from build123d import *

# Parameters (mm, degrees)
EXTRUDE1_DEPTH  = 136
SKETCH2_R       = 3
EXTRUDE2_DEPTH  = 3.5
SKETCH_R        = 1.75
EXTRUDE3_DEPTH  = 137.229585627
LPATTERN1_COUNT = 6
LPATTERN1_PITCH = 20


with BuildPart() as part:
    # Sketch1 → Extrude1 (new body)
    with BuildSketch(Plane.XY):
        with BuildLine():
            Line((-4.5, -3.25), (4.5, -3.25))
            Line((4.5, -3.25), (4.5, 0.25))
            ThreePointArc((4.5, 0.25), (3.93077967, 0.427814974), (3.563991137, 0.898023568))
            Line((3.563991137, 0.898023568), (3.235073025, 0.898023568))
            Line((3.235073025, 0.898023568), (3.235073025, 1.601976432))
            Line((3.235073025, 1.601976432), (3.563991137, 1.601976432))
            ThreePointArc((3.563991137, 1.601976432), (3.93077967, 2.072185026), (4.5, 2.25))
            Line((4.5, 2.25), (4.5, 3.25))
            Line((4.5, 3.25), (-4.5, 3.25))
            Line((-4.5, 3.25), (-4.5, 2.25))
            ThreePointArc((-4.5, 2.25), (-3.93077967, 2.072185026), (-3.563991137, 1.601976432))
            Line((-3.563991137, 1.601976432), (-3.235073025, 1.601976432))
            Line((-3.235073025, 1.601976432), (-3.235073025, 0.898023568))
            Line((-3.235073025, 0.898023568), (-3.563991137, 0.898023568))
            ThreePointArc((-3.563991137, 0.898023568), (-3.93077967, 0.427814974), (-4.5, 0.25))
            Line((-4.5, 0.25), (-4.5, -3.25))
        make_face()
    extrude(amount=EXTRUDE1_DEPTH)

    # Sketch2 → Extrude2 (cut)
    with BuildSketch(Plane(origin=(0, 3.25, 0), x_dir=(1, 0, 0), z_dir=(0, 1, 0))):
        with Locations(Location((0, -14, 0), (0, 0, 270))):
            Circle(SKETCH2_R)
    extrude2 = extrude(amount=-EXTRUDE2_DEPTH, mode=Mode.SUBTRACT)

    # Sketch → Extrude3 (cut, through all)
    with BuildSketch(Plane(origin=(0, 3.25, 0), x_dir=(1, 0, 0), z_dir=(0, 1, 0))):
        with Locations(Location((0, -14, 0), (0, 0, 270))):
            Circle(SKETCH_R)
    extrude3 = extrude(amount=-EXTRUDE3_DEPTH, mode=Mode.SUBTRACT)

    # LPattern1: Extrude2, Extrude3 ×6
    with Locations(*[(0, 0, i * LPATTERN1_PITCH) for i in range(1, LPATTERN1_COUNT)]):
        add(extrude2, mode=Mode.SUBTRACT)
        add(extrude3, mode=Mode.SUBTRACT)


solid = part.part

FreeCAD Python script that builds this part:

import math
import FreeCAD as App
import Part
import Sketcher
from FreeCAD import Vector

doc = App.newDocument("Part")
body = doc.addObject("PartDesign::Body", "Body")

# Sketch on XY plane
sketch1 = body.newObject("Sketcher::SketchObject", "Sketch")
sketch1.AttachmentSupport = (doc.getObject("XY_Plane"), [""])
sketch1.MapMode = "FlatFace"
sketch1.addGeometry(Part.LineSegment(Vector(-4.5, -3.25, 0), Vector(4.5, -3.25, 0)), False)
sketch1.addGeometry(Part.LineSegment(Vector(4.5, -3.25, 0), Vector(4.5, 0.25, 0)), False)
sketch1.addGeometry(Part.ArcOfCircle(Part.Circle(Vector(4.5, 1.25, 0), Vector(0, 0, 1), 1), math.radians(-159), math.radians(-90)), False)
sketch1.addGeometry(Part.LineSegment(Vector(3.56, 0.9, 0), Vector(3.24, 0.9, 0)), False)
sketch1.addGeometry(Part.LineSegment(Vector(3.24, 0.9, 0), Vector(3.24, 1.6, 0)), False)
sketch1.addGeometry(Part.LineSegment(Vector(3.24, 1.6, 0), Vector(3.56, 1.6, 0)), False)
sketch1.addGeometry(Part.ArcOfCircle(Part.Circle(Vector(4.5, 1.25, 0), Vector(0, 0, 1), 1), math.radians(90), math.radians(159)), False)
sketch1.addGeometry(Part.LineSegment(Vector(4.5, 2.25, 0), Vector(4.5, 3.25, 0)), False)
sketch1.addGeometry(Part.LineSegment(Vector(4.5, 3.25, 0), Vector(-4.5, 3.25, 0)), False)
sketch1.addGeometry(Part.LineSegment(Vector(-4.5, 3.25, 0), Vector(-4.5, 2.25, 0)), False)
sketch1.addGeometry(Part.ArcOfCircle(Part.Circle(Vector(-4.5, 1.25, 0), Vector(0, 0, 1), 1), math.radians(21), math.radians(90)), False)
sketch1.addGeometry(Part.LineSegment(Vector(-3.56, 1.6, 0), Vector(-3.24, 1.6, 0)), False)
sketch1.addGeometry(Part.LineSegment(Vector(-3.24, 1.6, 0), Vector(-3.24, 0.9, 0)), False)
sketch1.addGeometry(Part.LineSegment(Vector(-3.24, 0.9, 0), Vector(-3.56, 0.9, 0)), False)
sketch1.addGeometry(Part.ArcOfCircle(Part.Circle(Vector(-4.5, 1.25, 0), Vector(0, 0, 1), 1), math.radians(-90), math.radians(-21)), False)
sketch1.addGeometry(Part.LineSegment(Vector(-4.5, 0.25, 0), Vector(-4.5, -3.25, 0)), False)
sketch1.addConstraint(Sketcher.Constraint("Coincident", 0, 2, 1, 1))
sketch1.addConstraint(Sketcher.Constraint("Coincident", 1, 2, 2, 2))
sketch1.addConstraint(Sketcher.Constraint("Coincident", 2, 1, 3, 1))
sketch1.addConstraint(Sketcher.Constraint("Coincident", 3, 2, 4, 1))
sketch1.addConstraint(Sketcher.Constraint("Coincident", 4, 2, 5, 1))
sketch1.addConstraint(Sketcher.Constraint("Coincident", 5, 2, 6, 2))
sketch1.addConstraint(Sketcher.Constraint("Coincident", 6, 1, 7, 1))
sketch1.addConstraint(Sketcher.Constraint("Coincident", 7, 2, 8, 1))
sketch1.addConstraint(Sketcher.Constraint("Coincident", 8, 2, 9, 1))
sketch1.addConstraint(Sketcher.Constraint("Coincident", 9, 2, 10, 2))
sketch1.addConstraint(Sketcher.Constraint("Coincident", 10, 1, 11, 1))
sketch1.addConstraint(Sketcher.Constraint("Coincident", 11, 2, 12, 1))
sketch1.addConstraint(Sketcher.Constraint("Coincident", 12, 2, 13, 1))
sketch1.addConstraint(Sketcher.Constraint("Coincident", 13, 2, 14, 2))
sketch1.addConstraint(Sketcher.Constraint("Coincident", 14, 1, 15, 1))
sketch1.addConstraint(Sketcher.Constraint("Coincident", 15, 2, 0, 1))
sketch1.addConstraint(Sketcher.Constraint("Horizontal", 0))
sketch1.addConstraint(Sketcher.Constraint("Vertical", 1))
sketch1.addConstraint(Sketcher.Constraint("Horizontal", 3))
sketch1.addConstraint(Sketcher.Constraint("Vertical", 4))
sketch1.addConstraint(Sketcher.Constraint("Horizontal", 5))
sketch1.addConstraint(Sketcher.Constraint("Vertical", 7))
sketch1.addConstraint(Sketcher.Constraint("Horizontal", 8))
sketch1.addConstraint(Sketcher.Constraint("Vertical", 9))
sketch1.addConstraint(Sketcher.Constraint("Horizontal", 11))
sketch1.addConstraint(Sketcher.Constraint("Vertical", 12))
sketch1.addConstraint(Sketcher.Constraint("Horizontal", 13))
sketch1.addConstraint(Sketcher.Constraint("Vertical", 15))
sketch1.addConstraint(Sketcher.Constraint("Coincident", 6, 3, 2, 3))
sketch1.addConstraint(Sketcher.Constraint("Coincident", 14, 3, 10, 3))
sketch1.addConstraint(Sketcher.Constraint("Equal", 2, 6))
sketch1.addConstraint(Sketcher.Constraint("Equal", 6, 10))
sketch1.addConstraint(Sketcher.Constraint("Equal", 10, 14))
sketch1.addConstraint(Sketcher.Constraint("Symmetric", 0, 2, 8, 2, -1, 1))
sketch1.addConstraint(Sketcher.Constraint("Symmetric", 2, 3, 10, 3, -2))
sketch1.addConstraint(Sketcher.Constraint("Symmetric", 4, 2, 11, 2, -2))
sketch1.addConstraint(Sketcher.Constraint("Horizontal", 3, 2, 12, 2))
sketch1.addConstraint(Sketcher.Constraint("Vertical", 6, 3, 0, 2))
sketch1.addConstraint(Sketcher.Constraint("Vertical", 2, 1, 5, 2))
sketch1.addConstraint(Sketcher.Constraint("Vertical", 1, 2, 6, 1))
sketch1.addConstraint(Sketcher.Constraint("Vertical", 9, 2, 14, 1))
sketch1.addConstraint(Sketcher.Constraint("Radius", 2, 1.0))
sketch1.addConstraint(Sketcher.Constraint("DistanceX", 0, 1, 0, 2, 9.0))
sketch1.addConstraint(Sketcher.Constraint("DistanceY", 7, 1, 7, 2, 1.0))
sketch1.addConstraint(Sketcher.Constraint("DistanceY", 1, 1, 1, 2, 3.5))
sketch1.addConstraint(Sketcher.Constraint("DistanceX", 3, 2, 3, 1, 0.328918))
sketch1.addConstraint(Sketcher.Constraint("DistanceY", 4, 1, 4, 2, 0.703953))
pad1 = body.newObject("PartDesign::Pad", "Pad")
pad1.Profile = sketch1
pad1.Length = 136

# Sketch on XZ plane
sketch2 = body.newObject("Sketcher::SketchObject", "Sketch001")
sketch2.AttachmentSupport = (doc.getObject("XZ_Plane"), [""])
sketch2.MapMode = "FlatFace"
sketch2.AttachmentOffset = App.Placement(Vector(0, 0, -3.25), App.Rotation())
sketch2.addGeometry(Part.Circle(Vector(0, 14, 0), Vector(0, 0, 1), 3), False)
sketch2.addConstraint(Sketcher.Constraint("PointOnObject", 0, 3, -2))
sketch2.addConstraint(Sketcher.Constraint("Diameter", 0, 6.0))
sketch2.addConstraint(Sketcher.Constraint("DistanceY", -1, 1, 0, 3, 14.0))
pocket1 = body.newObject("PartDesign::Pocket", "Pocket")
pocket1.Profile = sketch2
pocket1.Length = 3.5
pocket1.Reversed = True

# Sketch on XZ plane
sketch3 = body.newObject("Sketcher::SketchObject", "Sketch002")
sketch3.AttachmentSupport = (doc.getObject("XZ_Plane"), [""])
sketch3.MapMode = "FlatFace"
sketch3.AttachmentOffset = App.Placement(Vector(0, 0, -3.25), App.Rotation())
sketch3.addGeometry(Part.Circle(Vector(0, 14, 0), Vector(0, 0, 1), 1.8), False)
sketch3.addConstraint(Sketcher.Constraint("PointOnObject", 0, 3, -2))
sketch3.addConstraint(Sketcher.Constraint("Diameter", 0, 3.5))
sketch3.addConstraint(Sketcher.Constraint("DistanceY", -1, 1, 0, 3, 14.0))
pocket2 = body.newObject("PartDesign::Pocket", "Pocket001")
pocket2.Profile = sketch3
pocket2.Type = "ThroughAll"
pocket2.Reversed = True
doc.recompute()

linearpattern = body.newObject("PartDesign::LinearPattern", "LinearPattern")
linearpattern.Originals = [pocket1, pocket2]
linearpattern.Direction = (doc.getObject("Z_Axis"), [""])
linearpattern.Mode = "offset"
linearpattern.Offset = 20
linearpattern.Occurrences = 6
body.Tip = linearpattern

doc.recompute()
